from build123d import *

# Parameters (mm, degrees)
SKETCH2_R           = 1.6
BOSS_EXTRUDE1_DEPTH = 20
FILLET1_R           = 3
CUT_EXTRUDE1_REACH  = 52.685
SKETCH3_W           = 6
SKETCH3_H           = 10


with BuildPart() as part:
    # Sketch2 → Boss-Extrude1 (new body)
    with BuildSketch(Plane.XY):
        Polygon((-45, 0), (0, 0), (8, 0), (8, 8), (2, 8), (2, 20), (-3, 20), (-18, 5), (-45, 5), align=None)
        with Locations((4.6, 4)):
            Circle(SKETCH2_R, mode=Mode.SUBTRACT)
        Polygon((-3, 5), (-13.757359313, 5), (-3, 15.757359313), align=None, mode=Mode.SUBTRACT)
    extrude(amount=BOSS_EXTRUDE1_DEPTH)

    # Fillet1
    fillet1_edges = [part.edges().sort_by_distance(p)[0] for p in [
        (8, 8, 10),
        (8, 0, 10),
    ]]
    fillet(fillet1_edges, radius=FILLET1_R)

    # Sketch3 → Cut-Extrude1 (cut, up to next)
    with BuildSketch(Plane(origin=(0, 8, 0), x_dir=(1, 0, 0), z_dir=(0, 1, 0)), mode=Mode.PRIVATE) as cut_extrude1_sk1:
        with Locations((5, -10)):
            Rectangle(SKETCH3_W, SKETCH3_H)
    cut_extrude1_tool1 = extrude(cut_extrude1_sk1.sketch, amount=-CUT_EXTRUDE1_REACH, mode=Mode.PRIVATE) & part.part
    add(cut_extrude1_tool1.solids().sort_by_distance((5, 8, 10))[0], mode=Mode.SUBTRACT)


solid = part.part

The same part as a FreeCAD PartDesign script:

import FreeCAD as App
import Part
import Sketcher


def edges_at(feature, points):
    """Names of the edges that pass closest to the given points."""
    edges = feature.Shape.Edges
    near = lambda p: min(range(len(edges)), key=lambda i: edges[i].distToShape(Part.Vertex(*p))[0])
    return sorted({f"Edge{near(p) + 1}" for p in points})


def add_polygon(sketch, points):
    """Adds a closed chain of lines whose ends are joined by coincident constraints."""
    first, n = sketch.GeometryCount, len(points)
    for a, b in zip(points, points[1:] + points[:1]):
        sketch.addGeometry(Part.LineSegment(App.Vector(*a, 0), App.Vector(*b, 0)), False)
    for i in range(n):
        sketch.addConstraint(Sketcher.Constraint("Coincident", first + i, 2, first + (i + 1) % n, 1))

doc = App.newDocument("Part")
body = doc.addObject("PartDesign::Body", "Body")

# Sketch on XY plane
sketch1 = body.newObject("Sketcher::SketchObject", "Sketch")
sketch1.AttachmentSupport = (doc.getObject("XY_Plane"), [""])
sketch1.MapMode = "FlatFace"
add_polygon(sketch1, [(-45, 0), (8, 0), (8, 8), (2, 8), (2, 20), (-3, 20), (-18, 5), (-45, 5)])  # lines 0-7
sketch1.addGeometry(Part.Circle(App.Vector(4.6, 4, 0), App.Vector(0, 0, 1), 1.6), False)  # 8
add_polygon(sketch1, [(-3, 15.757359), (-3, 5), (-13.757359, 5)])  # lines 9-11
sketch1.addConstraint([
    Sketcher.Constraint("Horizontal", 0),
    Sketcher.Constraint("Vertical", 1),
    Sketcher.Constraint("Horizontal", 2),
    Sketcher.Constraint("Vertical", 3),
    Sketcher.Constraint("Horizontal", 4),
    Sketcher.Constraint("Horizontal", 6),
    Sketcher.Constraint("Vertical", 7),
    Sketcher.Constraint("Vertical", 9),
    Sketcher.Constraint("Horizontal", 10),
    Sketcher.Constraint("PointOnObject", 0, 2, -1),
    Sketcher.Constraint("Parallel", 5, 11),
    Sketcher.Constraint("Horizontal", 6, 2, 9, 2),
    Sketcher.Constraint("Vertical", 4, 2, 9, 2),
    Sketcher.Constraint("Equal", 4, 7),
    Sketcher.Constraint("Equal", 10, 9),
    Sketcher.Constraint("Diameter", 8, 3.2),
    Sketcher.Constraint("DistanceX", 0, 1, 0, 2, 53.0),
    Sketcher.Constraint("DistanceX", 2, 2, 2, 1, 6.0),
    Sketcher.Constraint("DistanceX", 4, 2, 4, 1, 5.0),
    Sketcher.Constraint("DistanceX", 6, 2, 6, 1, 27.0),
    Sketcher.Constraint("DistanceY", 1, 1, 1, 2, 8.0),
    Sketcher.Constraint("DistanceY", -1, 1, 8, 3, 4.0),
    Sketcher.Constraint("DistanceX", -1, 1, 0, 2, 8.0),
    Sketcher.Constraint("DistanceX", -1, 1, 8, 3, 4.6),
    Sketcher.Constraint("DistanceX", 10, 2, 10, 1, 10.757359),
])
pad1 = body.newObject("PartDesign::Pad", "Pad")
pad1.Profile = sketch1
pad1.Length = 20
doc.recompute()

fillet = body.newObject("PartDesign::Fillet", "Fillet")
fillet.Base = (pad1, edges_at(pad1, [(8, 8, 10), (8, 0, 10)]))
fillet.Radius = 3

# Sketch on XZ plane
sketch2 = body.newObject("Sketcher::SketchObject", "Sketch001")
sketch2.AttachmentSupport = (doc.getObject("XZ_Plane"), [""])
sketch2.MapMode = "FlatFace"
sketch2.AttachmentOffset = App.Placement(App.Vector(0, 0, -8), App.Rotation())
add_polygon(sketch2, [(2, 5), (2, 15), (8, 15), (8, 5)])  # lines 0-3
sketch2.addConstraint([
    Sketcher.Constraint("Vertical", 0),
    Sketcher.Constraint("Horizontal", 1),
    Sketcher.Constraint("Vertical", 2),
    Sketcher.Constraint("Horizontal", 3),
    Sketcher.Constraint("DistanceX", 1, 1, 1, 2, 6.0),
    Sketcher.Constraint("DistanceY", 0, 1, 0, 2, 10.0),
    Sketcher.Constraint("DistanceX", -1, 1, 0, 2, 2.0),
    Sketcher.Constraint("DistanceY", -1, 1, 0, 2, 15.0),
])
pocket1 = body.newObject("PartDesign::Pocket", "Pocket")
pocket1.Profile = sketch2
pocket1.Type = "UpToFirst"
pocket1.Reversed = True

doc.recompute()
